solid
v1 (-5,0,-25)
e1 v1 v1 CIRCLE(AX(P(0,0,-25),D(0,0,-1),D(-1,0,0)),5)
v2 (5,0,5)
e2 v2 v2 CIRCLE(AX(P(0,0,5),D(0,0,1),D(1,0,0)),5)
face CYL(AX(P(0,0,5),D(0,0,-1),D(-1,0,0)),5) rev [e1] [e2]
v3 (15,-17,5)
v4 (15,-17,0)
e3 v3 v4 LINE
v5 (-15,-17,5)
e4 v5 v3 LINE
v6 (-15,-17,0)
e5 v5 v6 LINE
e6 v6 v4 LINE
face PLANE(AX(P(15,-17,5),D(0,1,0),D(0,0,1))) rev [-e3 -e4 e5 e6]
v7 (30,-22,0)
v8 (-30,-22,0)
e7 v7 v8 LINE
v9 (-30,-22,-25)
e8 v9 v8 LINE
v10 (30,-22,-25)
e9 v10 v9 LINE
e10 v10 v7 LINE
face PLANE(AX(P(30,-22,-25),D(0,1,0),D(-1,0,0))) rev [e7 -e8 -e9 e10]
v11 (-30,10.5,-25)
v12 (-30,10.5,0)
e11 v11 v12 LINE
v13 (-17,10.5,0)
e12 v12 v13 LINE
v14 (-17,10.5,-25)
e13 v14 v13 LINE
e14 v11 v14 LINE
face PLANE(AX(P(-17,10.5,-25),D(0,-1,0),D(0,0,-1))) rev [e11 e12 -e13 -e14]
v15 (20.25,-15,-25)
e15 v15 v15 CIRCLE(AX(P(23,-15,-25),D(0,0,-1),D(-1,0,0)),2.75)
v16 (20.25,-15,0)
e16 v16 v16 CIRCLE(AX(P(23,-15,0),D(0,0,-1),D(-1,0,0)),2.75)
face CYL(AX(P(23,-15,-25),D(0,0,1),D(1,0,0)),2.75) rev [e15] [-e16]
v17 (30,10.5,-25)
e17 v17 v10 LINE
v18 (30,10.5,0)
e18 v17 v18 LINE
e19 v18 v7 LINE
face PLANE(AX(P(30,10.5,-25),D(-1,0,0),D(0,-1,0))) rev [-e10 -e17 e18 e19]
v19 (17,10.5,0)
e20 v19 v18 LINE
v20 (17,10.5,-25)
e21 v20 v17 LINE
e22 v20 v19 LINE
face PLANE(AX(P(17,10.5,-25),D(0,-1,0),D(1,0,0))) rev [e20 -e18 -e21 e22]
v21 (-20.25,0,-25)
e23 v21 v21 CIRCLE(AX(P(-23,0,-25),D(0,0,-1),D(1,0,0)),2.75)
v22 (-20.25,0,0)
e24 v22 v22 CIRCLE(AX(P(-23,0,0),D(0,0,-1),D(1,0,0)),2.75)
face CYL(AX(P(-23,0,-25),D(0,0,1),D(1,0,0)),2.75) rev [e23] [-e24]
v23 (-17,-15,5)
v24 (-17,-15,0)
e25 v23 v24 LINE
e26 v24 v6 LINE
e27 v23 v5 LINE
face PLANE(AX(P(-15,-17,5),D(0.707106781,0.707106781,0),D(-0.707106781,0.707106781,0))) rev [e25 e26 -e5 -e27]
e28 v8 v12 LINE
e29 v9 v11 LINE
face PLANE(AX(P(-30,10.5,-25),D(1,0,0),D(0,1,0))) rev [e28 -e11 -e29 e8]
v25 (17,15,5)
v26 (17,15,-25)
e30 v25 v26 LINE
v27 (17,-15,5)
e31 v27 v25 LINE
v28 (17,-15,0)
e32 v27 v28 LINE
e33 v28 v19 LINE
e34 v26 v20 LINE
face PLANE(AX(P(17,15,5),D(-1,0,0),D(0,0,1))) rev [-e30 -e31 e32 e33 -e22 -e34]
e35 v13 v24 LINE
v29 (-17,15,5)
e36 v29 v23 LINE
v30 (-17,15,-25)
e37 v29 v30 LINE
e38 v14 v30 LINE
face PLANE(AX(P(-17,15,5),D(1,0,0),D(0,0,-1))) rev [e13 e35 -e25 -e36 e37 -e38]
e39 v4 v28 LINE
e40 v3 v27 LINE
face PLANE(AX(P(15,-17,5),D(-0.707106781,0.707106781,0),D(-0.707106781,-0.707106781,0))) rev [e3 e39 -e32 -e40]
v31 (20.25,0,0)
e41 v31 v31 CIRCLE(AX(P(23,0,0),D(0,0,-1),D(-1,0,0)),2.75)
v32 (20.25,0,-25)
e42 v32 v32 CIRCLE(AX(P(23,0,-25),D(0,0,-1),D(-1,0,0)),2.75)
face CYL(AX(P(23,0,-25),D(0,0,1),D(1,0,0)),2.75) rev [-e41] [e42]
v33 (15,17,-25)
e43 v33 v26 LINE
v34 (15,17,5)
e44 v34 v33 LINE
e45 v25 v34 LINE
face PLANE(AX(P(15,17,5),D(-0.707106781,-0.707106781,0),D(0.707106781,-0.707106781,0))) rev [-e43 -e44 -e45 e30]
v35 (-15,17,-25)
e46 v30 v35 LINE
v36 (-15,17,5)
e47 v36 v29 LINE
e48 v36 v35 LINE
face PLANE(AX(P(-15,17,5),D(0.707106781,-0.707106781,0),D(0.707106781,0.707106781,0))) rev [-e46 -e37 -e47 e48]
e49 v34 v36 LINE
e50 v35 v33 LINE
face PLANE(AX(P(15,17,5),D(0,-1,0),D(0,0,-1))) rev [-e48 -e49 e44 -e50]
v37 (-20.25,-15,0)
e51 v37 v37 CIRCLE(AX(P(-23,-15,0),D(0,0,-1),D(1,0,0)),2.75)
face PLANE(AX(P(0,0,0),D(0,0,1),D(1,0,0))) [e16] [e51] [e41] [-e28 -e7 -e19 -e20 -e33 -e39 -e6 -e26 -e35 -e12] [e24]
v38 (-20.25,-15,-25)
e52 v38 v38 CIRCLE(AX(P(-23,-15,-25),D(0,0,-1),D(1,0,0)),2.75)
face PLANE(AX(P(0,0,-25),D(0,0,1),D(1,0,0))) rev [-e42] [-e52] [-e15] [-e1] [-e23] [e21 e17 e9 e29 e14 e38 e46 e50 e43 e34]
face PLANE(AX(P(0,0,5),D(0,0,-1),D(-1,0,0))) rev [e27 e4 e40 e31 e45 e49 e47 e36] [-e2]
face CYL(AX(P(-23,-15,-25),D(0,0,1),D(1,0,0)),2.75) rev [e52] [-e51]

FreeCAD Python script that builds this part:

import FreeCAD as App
import Part
import Sketcher

V = App.Vector
Q = App.Units.Quantity


def add_polygon(sketch, points):
    """Adds a closed chain of lines whose ends are joined by coincident constraints."""
    first, n = sketch.GeometryCount, len(points)
    for a, b in zip(points, points[1:] + points[:1]):
        sketch.addGeometry(Part.LineSegment(App.Vector(*a, 0), App.Vector(*b, 0)), False)
    for i in range(n):
        sketch.addConstraint(Sketcher.Constraint("Coincident", first + i, 2, first + (i + 1) % n, 1))

doc = App.newDocument("Part")
body = doc.addObject("PartDesign::Body", "Body")

# Sketch on XY plane
sketch1 = body.newObject("Sketcher::SketchObject", "Sketch")
sketch1.AttachmentSupport = (doc.getObject("XY_Plane"), [""])
sketch1.MapMode = "FlatFace"
add_polygon(sketch1, [(15, 17), (-15, 17), (-17, 15), (-17, -15), (-15, -17), (15, -17), (17, -15), (17, 15)])  # lines 0-7
sketch1.addGeometry(Part.Circle(V(0, 0, 0), V(0, 0, 1), 5), False)  # 8
sketch1.addConstraint([
    Sketcher.Constraint("Horizontal", 0),
    Sketcher.Constraint("Vertical", 2),
    Sketcher.Constraint("Horizontal", 4),
    Sketcher.Constraint("Vertical", 6),
    Sketcher.Constraint("Coincident", 8, 3, -1, 1),
    Sketcher.Constraint("Symmetric", 0, 2, 4, 2, -1, 1),
    Sketcher.Constraint("Symmetric", 1, 2, 5, 2, -1, 1),
    Sketcher.Constraint("Perpendicular", 1, 3),
    Sketcher.Constraint("Perpendicular", 5, 7),
    Sketcher.Constraint("Horizontal", 2, 2, 5, 2),
    Sketcher.Constraint("Horizontal", 1, 2, 6, 2),
    Sketcher.Constraint("Vertical", 0, 2, 3, 2),
    Sketcher.Constraint("Equal", 4, 2),
    Sketcher.Constraint("Diameter", 8, Q("10 mm")),
    Sketcher.Constraint("DistanceX", 0, 2, 0, 1, Q("30 mm")),
    Sketcher.Constraint("DistanceY", -1, 1, 0, 2, Q("17 mm")),
])
pad1 = body.newObject("PartDesign::Pad", "Pad")
pad1.Profile = sketch1
pad1.Length = 5

# Sketch on XY plane
sketch2 = body.newObject("Sketcher::SketchObject", "Sketch001")
sketch2.AttachmentSupport = (doc.getObject("XY_Plane"), [""])
sketch2.MapMode = "FlatFace"
sketch2.AttachmentOffset = App.Placement(V(0, 0, -25), App.Rotation())
add_polygon(sketch2, [(-15, 17), (15, 17), (17, 15), (17, 10.5), (30, 10.5), (30, -22), (-30, -22), (-30, 10.5), (-17, 10.5), (-17, 15)])  # lines 0-9
sketch2.addGeometry(Part.Circle(V(23, -15, 0), V(0, 0, 1), 2.8), False)  # 10
sketch2.addGeometry(Part.Circle(V(-23, -15, 0), V(0, 0, 1), 2.8), False)  # 11
sketch2.addGeometry(Part.Circle(V(23, 0, 0), V(0, 0, 1), 2.8), False)  # 12
sketch2.addGeometry(Part.Circle(V(0, 0, 0), V(0, 0, 1), 5), False)  # 13
sketch2.addGeometry(Part.Circle(V(-23, 0, 0), V(0, 0, 1), 2.8), False)  # 14
sketch2.addConstraint([
    Sketcher.Constraint("Horizontal", 0),
    Sketcher.Constraint("Vertical", 2),
    Sketcher.Constraint("Horizontal", 3),
    Sketcher.Constraint("Vertical", 4),
    Sketcher.Constraint("Horizontal", 5),
    Sketcher.Constraint("Vertical", 6),
    Sketcher.Constraint("Horizontal", 7),
    Sketcher.Constraint("Vertical", 8),
    Sketcher.Constraint("Coincident", 13, 3, -1, 1),
    Sketcher.Constraint("Equal", 10, 11),
    Sketcher.Constraint("Equal", 11, 12),
    Sketcher.Constraint("Equal", 12, 14),
    Sketcher.Constraint("Symmetric", 12, 3, 14, 3, -1, 1),
    Sketcher.Constraint("Symmetric", 10, 3, 11, 3, -2),
    Sketcher.Constraint("Symmetric", 3, 2, 6, 2, -2),
    Sketcher.Constraint("Symmetric", 1, 2, 8, 2, -2),
    Sketcher.Constraint("PointOnObject", 12, 3, -1),
    Sketcher.Constraint("Perpendicular", 1, 9),
    Sketcher.Constraint("Vertical", 10, 3, 12, 3),
    Sketcher.Constraint("Equal", 1, 9),
    Sketcher.Constraint("Diameter", 13, Q("10 mm")),
    Sketcher.Constraint("Diameter", 10, Q("5.5 mm")),
    Sketcher.Constraint("DistanceX", 0, 1, 0, 2, Q("30 mm")),
    Sketcher.Constraint("DistanceX", 3, 1, 3, 2, Q("13 mm")),
    Sketcher.Constraint("DistanceX", 5, 2, 5, 1, Q("60 mm")),
    Sketcher.Constraint("DistanceY", 2, 2, 2, 1, Q("4.5 mm")),
    Sketcher.Constraint("DistanceY", 4, 2, 4, 1, Q("32.5 mm")),
    Sketcher.Constraint("DistanceX", -1, 1, 10, 3, Q("23 mm")),
    Sketcher.Constraint("DistanceY", 10, 3, -1, 1, Q("15 mm")),
    Sketcher.Constraint("DistanceY", -1, 1, 0, 2, Q("17 mm")),
])
pad2 = body.newObject("PartDesign::Pad", "Pad001")
pad2.Profile = sketch2
pad2.Length = 25

doc.recompute()
